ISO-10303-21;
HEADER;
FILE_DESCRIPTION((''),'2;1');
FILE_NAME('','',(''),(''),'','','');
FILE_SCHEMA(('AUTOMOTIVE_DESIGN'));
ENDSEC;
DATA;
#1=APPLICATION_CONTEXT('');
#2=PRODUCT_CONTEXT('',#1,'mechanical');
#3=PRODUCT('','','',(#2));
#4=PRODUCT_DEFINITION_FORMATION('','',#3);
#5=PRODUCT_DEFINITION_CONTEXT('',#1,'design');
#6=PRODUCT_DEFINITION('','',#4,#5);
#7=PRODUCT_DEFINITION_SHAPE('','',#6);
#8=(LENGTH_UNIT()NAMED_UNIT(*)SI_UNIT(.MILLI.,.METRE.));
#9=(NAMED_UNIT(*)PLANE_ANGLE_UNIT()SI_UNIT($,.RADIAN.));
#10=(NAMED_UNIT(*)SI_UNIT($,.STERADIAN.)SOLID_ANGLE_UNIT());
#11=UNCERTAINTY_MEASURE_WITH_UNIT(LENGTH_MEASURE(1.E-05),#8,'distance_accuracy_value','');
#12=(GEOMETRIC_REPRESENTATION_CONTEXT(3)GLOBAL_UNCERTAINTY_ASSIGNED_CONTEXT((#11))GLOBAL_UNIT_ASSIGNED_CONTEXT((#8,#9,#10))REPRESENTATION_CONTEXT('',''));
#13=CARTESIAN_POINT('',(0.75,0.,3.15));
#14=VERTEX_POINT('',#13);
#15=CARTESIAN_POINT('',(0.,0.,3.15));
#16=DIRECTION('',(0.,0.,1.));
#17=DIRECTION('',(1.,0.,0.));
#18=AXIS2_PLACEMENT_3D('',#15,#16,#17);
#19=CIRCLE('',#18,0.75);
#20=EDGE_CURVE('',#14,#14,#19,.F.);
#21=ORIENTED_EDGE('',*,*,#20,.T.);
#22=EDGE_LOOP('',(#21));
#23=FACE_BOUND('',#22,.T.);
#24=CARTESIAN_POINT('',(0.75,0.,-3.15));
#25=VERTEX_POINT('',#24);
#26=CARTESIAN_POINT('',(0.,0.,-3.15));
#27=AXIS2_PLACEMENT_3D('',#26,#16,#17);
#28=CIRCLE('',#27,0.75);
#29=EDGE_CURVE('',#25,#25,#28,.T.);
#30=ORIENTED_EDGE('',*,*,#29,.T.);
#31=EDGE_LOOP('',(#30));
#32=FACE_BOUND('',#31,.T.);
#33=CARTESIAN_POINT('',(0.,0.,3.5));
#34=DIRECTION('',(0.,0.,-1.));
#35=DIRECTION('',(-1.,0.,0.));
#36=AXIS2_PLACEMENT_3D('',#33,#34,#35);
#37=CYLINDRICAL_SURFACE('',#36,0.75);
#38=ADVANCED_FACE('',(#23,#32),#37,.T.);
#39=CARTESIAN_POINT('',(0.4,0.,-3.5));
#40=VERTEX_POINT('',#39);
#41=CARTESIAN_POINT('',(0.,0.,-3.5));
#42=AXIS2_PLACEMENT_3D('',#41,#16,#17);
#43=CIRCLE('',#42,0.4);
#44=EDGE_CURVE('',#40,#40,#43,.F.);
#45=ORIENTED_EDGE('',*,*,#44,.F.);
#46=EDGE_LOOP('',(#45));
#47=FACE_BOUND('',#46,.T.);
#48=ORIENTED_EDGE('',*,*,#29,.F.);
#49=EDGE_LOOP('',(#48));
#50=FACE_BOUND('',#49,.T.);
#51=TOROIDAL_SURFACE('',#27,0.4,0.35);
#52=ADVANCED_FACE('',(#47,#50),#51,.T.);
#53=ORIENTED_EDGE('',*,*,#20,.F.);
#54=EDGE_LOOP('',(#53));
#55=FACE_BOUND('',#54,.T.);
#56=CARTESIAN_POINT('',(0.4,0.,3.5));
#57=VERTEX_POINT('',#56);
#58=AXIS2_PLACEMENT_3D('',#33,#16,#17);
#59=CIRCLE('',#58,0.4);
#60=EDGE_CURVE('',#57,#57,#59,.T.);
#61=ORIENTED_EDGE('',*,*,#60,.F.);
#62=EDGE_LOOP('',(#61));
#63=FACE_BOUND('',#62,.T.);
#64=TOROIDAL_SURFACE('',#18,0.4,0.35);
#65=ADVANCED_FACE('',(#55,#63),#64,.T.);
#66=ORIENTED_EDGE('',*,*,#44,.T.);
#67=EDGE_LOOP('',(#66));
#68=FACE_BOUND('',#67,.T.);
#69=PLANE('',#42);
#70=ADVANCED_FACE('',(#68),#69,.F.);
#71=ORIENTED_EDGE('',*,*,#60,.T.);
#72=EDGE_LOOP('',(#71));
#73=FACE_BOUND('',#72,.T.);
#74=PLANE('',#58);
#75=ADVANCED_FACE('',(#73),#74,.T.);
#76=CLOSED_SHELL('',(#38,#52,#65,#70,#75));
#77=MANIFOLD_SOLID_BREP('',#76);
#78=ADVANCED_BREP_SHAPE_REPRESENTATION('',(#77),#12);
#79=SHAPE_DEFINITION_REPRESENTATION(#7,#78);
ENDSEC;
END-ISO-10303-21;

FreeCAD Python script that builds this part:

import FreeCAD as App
import Part
import Sketcher

V = App.Vector


def edges_at(feature, points):
    """Names of the edges that pass closest to the given points."""
    edges = feature.Shape.Edges
    near = lambda p: min(range(len(edges)), key=lambda i: edges[i].distToShape(Part.Vertex(*p))[0])
    return sorted({f"Edge{near(p) + 1}" for p in points})

doc = App.newDocument("Part")
params = doc.addObject("Spreadsheet::Sheet", "Params")
for row, (alias, value) in enumerate([
    ("sketch1_diameter", "1.5 mm"),
    ("pad1_length", "7 mm"),
    ("fillet_radius", "0.35 mm"),
], start=1):
    params.set(f"A{row}", alias)
    params.set(f"B{row}", "=" + value)
    params.setAlias(f"B{row}", alias)

body = doc.addObject("PartDesign::Body", "Body")

sketch1 = doc.addObject("Sketcher::SketchObject", "Sketch")
body.addObject(sketch1)
sketch1.AttachmentSupport = (doc.XY_Plane, [""])
sketch1.MapMode = "FlatFace"
sketch1.addGeometry(Part.Circle(V(0, 0, 0), V(0, 0, 1), 0.8), False)
sketch1.addConstraint(Sketcher.Constraint("Coincident", 0, 3, -1, 1))
sketch1.addConstraint(Sketcher.Constraint("Diameter", 0, 1.5))
sketch1.setExpression("Constraints[1]", "Params.sketch1_diameter")
pad1 = doc.addObject("PartDesign::Pad", "Pad")
body.addObject(pad1)
pad1.Profile = sketch1
pad1.setExpression("Length", "Params.pad1_length")
pad1.Midplane = True
doc.recompute()

fillet = doc.addObject("PartDesign::Fillet", "Fillet")
body.addObject(fillet)
fillet.Base = (pad1, edges_at(pad1, [(-0.75, 0, -3.5), (-0.75, 0, 3.5)]))
fillet.setExpression("Radius", "Params.fillet_radius")

doc.recompute()
